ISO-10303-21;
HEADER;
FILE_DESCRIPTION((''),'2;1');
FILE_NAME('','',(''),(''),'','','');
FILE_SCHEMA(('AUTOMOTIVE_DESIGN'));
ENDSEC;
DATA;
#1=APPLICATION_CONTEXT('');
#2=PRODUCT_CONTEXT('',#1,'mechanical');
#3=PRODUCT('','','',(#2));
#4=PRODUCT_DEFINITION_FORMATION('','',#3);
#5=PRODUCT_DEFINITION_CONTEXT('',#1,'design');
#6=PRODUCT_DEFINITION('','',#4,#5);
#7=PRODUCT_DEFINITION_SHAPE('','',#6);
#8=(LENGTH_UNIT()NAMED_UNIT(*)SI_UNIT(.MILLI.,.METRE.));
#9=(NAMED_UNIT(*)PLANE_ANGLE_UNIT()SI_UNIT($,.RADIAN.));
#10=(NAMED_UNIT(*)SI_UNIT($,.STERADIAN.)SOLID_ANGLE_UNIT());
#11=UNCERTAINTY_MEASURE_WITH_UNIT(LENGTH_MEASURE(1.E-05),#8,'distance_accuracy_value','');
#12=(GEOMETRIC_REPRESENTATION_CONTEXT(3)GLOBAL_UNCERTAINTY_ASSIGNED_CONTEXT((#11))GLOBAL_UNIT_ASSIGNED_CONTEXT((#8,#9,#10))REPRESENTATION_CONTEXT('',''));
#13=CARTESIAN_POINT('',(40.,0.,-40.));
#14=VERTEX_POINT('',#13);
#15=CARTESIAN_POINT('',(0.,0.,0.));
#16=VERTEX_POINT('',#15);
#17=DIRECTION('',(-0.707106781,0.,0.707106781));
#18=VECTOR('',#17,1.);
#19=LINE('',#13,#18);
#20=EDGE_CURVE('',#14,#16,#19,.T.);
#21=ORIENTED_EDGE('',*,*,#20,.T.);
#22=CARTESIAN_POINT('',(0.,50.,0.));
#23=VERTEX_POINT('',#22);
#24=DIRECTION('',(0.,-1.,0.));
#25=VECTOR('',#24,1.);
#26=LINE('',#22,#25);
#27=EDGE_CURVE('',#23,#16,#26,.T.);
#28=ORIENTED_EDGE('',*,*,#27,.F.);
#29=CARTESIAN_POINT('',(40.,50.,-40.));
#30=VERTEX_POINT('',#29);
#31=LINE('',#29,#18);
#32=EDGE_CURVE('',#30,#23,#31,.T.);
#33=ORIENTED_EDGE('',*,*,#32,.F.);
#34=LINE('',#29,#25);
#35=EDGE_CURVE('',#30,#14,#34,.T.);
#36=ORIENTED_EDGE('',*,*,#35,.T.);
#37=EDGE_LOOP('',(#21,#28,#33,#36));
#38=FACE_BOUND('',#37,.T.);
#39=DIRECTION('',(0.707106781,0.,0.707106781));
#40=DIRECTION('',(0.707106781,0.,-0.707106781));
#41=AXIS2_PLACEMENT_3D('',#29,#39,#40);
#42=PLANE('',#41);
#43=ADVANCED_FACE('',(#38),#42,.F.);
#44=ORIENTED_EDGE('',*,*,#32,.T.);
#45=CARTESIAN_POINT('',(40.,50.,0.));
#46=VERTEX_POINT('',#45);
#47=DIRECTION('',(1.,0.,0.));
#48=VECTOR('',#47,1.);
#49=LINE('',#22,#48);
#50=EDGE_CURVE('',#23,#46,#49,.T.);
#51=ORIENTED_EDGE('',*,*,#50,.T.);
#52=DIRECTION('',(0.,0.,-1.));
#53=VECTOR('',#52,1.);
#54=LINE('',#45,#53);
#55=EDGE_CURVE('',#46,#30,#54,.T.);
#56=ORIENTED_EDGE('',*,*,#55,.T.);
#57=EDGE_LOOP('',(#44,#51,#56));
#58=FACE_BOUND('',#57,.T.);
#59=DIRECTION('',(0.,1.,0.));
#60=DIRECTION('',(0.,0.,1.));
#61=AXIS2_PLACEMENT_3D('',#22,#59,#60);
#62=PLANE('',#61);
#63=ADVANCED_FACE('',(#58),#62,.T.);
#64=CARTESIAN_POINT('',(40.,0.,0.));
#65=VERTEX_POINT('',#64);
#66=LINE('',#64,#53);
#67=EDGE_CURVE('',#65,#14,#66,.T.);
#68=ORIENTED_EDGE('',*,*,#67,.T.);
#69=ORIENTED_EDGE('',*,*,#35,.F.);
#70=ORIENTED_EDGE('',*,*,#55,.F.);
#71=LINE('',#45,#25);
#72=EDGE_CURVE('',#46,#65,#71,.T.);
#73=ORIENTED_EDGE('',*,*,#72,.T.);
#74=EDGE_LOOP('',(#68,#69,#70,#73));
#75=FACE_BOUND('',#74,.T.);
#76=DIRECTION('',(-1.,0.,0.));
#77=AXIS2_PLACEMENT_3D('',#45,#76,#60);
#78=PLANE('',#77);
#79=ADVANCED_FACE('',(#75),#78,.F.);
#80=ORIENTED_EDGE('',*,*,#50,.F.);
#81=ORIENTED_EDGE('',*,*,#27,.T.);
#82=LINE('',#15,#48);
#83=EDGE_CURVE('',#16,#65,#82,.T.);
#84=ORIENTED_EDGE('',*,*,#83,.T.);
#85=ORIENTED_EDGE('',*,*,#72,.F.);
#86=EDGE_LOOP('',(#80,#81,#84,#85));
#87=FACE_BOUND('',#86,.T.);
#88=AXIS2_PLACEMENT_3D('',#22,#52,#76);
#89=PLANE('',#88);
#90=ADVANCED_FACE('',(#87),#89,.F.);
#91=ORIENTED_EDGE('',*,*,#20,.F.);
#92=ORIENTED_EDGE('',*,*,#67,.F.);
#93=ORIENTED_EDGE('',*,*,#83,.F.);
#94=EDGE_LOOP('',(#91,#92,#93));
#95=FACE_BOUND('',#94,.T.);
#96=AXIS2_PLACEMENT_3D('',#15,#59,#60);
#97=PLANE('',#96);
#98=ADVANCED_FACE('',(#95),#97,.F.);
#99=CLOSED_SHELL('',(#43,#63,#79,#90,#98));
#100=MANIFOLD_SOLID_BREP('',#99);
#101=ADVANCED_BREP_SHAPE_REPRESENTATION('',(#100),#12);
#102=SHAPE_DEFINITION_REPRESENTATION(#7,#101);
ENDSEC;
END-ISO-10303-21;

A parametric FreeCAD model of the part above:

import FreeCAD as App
import Part
import Sketcher


def add_polygon(sketch, points):
    """Adds a closed chain of lines whose ends are joined by coincident constraints."""
    first, n = sketch.GeometryCount, len(points)
    for a, b in zip(points, points[1:] + points[:1]):
        sketch.addGeometry(Part.LineSegment(App.Vector(*a, 0), App.Vector(*b, 0)), False)
    for i in range(n):
        sketch.addConstraint(Sketcher.Constraint("Coincident", first + i, 2, first + (i + 1) % n, 1))

doc = App.newDocument("Part")
body = doc.addObject("PartDesign::Body", "Body")

# Sketch on XZ plane
sketch1 = body.newObject("Sketcher::SketchObject", "Sketch")
sketch1.AttachmentSupport = (doc.getObject("XZ_Plane"), [""])
sketch1.MapMode = "FlatFace"
add_polygon(sketch1, [(0, 0), (40, 0), (40, -40)])  # lines 0-2
sketch1.addConstraint([
    Sketcher.Constraint("Horizontal", 0),
    Sketcher.Constraint("Vertical", 1),
    Sketcher.Constraint("Coincident", 2, 2, -1, 1),
    Sketcher.Constraint("Equal", 0, 1),
    Sketcher.Constraint("DistanceX", 0, 1, 0, 2, 40.0),
])
pad1 = body.newObject("PartDesign::Pad", "Pad")
pad1.Profile = sketch1
pad1.Length = 50
pad1.Reversed = True

doc.recompute()
